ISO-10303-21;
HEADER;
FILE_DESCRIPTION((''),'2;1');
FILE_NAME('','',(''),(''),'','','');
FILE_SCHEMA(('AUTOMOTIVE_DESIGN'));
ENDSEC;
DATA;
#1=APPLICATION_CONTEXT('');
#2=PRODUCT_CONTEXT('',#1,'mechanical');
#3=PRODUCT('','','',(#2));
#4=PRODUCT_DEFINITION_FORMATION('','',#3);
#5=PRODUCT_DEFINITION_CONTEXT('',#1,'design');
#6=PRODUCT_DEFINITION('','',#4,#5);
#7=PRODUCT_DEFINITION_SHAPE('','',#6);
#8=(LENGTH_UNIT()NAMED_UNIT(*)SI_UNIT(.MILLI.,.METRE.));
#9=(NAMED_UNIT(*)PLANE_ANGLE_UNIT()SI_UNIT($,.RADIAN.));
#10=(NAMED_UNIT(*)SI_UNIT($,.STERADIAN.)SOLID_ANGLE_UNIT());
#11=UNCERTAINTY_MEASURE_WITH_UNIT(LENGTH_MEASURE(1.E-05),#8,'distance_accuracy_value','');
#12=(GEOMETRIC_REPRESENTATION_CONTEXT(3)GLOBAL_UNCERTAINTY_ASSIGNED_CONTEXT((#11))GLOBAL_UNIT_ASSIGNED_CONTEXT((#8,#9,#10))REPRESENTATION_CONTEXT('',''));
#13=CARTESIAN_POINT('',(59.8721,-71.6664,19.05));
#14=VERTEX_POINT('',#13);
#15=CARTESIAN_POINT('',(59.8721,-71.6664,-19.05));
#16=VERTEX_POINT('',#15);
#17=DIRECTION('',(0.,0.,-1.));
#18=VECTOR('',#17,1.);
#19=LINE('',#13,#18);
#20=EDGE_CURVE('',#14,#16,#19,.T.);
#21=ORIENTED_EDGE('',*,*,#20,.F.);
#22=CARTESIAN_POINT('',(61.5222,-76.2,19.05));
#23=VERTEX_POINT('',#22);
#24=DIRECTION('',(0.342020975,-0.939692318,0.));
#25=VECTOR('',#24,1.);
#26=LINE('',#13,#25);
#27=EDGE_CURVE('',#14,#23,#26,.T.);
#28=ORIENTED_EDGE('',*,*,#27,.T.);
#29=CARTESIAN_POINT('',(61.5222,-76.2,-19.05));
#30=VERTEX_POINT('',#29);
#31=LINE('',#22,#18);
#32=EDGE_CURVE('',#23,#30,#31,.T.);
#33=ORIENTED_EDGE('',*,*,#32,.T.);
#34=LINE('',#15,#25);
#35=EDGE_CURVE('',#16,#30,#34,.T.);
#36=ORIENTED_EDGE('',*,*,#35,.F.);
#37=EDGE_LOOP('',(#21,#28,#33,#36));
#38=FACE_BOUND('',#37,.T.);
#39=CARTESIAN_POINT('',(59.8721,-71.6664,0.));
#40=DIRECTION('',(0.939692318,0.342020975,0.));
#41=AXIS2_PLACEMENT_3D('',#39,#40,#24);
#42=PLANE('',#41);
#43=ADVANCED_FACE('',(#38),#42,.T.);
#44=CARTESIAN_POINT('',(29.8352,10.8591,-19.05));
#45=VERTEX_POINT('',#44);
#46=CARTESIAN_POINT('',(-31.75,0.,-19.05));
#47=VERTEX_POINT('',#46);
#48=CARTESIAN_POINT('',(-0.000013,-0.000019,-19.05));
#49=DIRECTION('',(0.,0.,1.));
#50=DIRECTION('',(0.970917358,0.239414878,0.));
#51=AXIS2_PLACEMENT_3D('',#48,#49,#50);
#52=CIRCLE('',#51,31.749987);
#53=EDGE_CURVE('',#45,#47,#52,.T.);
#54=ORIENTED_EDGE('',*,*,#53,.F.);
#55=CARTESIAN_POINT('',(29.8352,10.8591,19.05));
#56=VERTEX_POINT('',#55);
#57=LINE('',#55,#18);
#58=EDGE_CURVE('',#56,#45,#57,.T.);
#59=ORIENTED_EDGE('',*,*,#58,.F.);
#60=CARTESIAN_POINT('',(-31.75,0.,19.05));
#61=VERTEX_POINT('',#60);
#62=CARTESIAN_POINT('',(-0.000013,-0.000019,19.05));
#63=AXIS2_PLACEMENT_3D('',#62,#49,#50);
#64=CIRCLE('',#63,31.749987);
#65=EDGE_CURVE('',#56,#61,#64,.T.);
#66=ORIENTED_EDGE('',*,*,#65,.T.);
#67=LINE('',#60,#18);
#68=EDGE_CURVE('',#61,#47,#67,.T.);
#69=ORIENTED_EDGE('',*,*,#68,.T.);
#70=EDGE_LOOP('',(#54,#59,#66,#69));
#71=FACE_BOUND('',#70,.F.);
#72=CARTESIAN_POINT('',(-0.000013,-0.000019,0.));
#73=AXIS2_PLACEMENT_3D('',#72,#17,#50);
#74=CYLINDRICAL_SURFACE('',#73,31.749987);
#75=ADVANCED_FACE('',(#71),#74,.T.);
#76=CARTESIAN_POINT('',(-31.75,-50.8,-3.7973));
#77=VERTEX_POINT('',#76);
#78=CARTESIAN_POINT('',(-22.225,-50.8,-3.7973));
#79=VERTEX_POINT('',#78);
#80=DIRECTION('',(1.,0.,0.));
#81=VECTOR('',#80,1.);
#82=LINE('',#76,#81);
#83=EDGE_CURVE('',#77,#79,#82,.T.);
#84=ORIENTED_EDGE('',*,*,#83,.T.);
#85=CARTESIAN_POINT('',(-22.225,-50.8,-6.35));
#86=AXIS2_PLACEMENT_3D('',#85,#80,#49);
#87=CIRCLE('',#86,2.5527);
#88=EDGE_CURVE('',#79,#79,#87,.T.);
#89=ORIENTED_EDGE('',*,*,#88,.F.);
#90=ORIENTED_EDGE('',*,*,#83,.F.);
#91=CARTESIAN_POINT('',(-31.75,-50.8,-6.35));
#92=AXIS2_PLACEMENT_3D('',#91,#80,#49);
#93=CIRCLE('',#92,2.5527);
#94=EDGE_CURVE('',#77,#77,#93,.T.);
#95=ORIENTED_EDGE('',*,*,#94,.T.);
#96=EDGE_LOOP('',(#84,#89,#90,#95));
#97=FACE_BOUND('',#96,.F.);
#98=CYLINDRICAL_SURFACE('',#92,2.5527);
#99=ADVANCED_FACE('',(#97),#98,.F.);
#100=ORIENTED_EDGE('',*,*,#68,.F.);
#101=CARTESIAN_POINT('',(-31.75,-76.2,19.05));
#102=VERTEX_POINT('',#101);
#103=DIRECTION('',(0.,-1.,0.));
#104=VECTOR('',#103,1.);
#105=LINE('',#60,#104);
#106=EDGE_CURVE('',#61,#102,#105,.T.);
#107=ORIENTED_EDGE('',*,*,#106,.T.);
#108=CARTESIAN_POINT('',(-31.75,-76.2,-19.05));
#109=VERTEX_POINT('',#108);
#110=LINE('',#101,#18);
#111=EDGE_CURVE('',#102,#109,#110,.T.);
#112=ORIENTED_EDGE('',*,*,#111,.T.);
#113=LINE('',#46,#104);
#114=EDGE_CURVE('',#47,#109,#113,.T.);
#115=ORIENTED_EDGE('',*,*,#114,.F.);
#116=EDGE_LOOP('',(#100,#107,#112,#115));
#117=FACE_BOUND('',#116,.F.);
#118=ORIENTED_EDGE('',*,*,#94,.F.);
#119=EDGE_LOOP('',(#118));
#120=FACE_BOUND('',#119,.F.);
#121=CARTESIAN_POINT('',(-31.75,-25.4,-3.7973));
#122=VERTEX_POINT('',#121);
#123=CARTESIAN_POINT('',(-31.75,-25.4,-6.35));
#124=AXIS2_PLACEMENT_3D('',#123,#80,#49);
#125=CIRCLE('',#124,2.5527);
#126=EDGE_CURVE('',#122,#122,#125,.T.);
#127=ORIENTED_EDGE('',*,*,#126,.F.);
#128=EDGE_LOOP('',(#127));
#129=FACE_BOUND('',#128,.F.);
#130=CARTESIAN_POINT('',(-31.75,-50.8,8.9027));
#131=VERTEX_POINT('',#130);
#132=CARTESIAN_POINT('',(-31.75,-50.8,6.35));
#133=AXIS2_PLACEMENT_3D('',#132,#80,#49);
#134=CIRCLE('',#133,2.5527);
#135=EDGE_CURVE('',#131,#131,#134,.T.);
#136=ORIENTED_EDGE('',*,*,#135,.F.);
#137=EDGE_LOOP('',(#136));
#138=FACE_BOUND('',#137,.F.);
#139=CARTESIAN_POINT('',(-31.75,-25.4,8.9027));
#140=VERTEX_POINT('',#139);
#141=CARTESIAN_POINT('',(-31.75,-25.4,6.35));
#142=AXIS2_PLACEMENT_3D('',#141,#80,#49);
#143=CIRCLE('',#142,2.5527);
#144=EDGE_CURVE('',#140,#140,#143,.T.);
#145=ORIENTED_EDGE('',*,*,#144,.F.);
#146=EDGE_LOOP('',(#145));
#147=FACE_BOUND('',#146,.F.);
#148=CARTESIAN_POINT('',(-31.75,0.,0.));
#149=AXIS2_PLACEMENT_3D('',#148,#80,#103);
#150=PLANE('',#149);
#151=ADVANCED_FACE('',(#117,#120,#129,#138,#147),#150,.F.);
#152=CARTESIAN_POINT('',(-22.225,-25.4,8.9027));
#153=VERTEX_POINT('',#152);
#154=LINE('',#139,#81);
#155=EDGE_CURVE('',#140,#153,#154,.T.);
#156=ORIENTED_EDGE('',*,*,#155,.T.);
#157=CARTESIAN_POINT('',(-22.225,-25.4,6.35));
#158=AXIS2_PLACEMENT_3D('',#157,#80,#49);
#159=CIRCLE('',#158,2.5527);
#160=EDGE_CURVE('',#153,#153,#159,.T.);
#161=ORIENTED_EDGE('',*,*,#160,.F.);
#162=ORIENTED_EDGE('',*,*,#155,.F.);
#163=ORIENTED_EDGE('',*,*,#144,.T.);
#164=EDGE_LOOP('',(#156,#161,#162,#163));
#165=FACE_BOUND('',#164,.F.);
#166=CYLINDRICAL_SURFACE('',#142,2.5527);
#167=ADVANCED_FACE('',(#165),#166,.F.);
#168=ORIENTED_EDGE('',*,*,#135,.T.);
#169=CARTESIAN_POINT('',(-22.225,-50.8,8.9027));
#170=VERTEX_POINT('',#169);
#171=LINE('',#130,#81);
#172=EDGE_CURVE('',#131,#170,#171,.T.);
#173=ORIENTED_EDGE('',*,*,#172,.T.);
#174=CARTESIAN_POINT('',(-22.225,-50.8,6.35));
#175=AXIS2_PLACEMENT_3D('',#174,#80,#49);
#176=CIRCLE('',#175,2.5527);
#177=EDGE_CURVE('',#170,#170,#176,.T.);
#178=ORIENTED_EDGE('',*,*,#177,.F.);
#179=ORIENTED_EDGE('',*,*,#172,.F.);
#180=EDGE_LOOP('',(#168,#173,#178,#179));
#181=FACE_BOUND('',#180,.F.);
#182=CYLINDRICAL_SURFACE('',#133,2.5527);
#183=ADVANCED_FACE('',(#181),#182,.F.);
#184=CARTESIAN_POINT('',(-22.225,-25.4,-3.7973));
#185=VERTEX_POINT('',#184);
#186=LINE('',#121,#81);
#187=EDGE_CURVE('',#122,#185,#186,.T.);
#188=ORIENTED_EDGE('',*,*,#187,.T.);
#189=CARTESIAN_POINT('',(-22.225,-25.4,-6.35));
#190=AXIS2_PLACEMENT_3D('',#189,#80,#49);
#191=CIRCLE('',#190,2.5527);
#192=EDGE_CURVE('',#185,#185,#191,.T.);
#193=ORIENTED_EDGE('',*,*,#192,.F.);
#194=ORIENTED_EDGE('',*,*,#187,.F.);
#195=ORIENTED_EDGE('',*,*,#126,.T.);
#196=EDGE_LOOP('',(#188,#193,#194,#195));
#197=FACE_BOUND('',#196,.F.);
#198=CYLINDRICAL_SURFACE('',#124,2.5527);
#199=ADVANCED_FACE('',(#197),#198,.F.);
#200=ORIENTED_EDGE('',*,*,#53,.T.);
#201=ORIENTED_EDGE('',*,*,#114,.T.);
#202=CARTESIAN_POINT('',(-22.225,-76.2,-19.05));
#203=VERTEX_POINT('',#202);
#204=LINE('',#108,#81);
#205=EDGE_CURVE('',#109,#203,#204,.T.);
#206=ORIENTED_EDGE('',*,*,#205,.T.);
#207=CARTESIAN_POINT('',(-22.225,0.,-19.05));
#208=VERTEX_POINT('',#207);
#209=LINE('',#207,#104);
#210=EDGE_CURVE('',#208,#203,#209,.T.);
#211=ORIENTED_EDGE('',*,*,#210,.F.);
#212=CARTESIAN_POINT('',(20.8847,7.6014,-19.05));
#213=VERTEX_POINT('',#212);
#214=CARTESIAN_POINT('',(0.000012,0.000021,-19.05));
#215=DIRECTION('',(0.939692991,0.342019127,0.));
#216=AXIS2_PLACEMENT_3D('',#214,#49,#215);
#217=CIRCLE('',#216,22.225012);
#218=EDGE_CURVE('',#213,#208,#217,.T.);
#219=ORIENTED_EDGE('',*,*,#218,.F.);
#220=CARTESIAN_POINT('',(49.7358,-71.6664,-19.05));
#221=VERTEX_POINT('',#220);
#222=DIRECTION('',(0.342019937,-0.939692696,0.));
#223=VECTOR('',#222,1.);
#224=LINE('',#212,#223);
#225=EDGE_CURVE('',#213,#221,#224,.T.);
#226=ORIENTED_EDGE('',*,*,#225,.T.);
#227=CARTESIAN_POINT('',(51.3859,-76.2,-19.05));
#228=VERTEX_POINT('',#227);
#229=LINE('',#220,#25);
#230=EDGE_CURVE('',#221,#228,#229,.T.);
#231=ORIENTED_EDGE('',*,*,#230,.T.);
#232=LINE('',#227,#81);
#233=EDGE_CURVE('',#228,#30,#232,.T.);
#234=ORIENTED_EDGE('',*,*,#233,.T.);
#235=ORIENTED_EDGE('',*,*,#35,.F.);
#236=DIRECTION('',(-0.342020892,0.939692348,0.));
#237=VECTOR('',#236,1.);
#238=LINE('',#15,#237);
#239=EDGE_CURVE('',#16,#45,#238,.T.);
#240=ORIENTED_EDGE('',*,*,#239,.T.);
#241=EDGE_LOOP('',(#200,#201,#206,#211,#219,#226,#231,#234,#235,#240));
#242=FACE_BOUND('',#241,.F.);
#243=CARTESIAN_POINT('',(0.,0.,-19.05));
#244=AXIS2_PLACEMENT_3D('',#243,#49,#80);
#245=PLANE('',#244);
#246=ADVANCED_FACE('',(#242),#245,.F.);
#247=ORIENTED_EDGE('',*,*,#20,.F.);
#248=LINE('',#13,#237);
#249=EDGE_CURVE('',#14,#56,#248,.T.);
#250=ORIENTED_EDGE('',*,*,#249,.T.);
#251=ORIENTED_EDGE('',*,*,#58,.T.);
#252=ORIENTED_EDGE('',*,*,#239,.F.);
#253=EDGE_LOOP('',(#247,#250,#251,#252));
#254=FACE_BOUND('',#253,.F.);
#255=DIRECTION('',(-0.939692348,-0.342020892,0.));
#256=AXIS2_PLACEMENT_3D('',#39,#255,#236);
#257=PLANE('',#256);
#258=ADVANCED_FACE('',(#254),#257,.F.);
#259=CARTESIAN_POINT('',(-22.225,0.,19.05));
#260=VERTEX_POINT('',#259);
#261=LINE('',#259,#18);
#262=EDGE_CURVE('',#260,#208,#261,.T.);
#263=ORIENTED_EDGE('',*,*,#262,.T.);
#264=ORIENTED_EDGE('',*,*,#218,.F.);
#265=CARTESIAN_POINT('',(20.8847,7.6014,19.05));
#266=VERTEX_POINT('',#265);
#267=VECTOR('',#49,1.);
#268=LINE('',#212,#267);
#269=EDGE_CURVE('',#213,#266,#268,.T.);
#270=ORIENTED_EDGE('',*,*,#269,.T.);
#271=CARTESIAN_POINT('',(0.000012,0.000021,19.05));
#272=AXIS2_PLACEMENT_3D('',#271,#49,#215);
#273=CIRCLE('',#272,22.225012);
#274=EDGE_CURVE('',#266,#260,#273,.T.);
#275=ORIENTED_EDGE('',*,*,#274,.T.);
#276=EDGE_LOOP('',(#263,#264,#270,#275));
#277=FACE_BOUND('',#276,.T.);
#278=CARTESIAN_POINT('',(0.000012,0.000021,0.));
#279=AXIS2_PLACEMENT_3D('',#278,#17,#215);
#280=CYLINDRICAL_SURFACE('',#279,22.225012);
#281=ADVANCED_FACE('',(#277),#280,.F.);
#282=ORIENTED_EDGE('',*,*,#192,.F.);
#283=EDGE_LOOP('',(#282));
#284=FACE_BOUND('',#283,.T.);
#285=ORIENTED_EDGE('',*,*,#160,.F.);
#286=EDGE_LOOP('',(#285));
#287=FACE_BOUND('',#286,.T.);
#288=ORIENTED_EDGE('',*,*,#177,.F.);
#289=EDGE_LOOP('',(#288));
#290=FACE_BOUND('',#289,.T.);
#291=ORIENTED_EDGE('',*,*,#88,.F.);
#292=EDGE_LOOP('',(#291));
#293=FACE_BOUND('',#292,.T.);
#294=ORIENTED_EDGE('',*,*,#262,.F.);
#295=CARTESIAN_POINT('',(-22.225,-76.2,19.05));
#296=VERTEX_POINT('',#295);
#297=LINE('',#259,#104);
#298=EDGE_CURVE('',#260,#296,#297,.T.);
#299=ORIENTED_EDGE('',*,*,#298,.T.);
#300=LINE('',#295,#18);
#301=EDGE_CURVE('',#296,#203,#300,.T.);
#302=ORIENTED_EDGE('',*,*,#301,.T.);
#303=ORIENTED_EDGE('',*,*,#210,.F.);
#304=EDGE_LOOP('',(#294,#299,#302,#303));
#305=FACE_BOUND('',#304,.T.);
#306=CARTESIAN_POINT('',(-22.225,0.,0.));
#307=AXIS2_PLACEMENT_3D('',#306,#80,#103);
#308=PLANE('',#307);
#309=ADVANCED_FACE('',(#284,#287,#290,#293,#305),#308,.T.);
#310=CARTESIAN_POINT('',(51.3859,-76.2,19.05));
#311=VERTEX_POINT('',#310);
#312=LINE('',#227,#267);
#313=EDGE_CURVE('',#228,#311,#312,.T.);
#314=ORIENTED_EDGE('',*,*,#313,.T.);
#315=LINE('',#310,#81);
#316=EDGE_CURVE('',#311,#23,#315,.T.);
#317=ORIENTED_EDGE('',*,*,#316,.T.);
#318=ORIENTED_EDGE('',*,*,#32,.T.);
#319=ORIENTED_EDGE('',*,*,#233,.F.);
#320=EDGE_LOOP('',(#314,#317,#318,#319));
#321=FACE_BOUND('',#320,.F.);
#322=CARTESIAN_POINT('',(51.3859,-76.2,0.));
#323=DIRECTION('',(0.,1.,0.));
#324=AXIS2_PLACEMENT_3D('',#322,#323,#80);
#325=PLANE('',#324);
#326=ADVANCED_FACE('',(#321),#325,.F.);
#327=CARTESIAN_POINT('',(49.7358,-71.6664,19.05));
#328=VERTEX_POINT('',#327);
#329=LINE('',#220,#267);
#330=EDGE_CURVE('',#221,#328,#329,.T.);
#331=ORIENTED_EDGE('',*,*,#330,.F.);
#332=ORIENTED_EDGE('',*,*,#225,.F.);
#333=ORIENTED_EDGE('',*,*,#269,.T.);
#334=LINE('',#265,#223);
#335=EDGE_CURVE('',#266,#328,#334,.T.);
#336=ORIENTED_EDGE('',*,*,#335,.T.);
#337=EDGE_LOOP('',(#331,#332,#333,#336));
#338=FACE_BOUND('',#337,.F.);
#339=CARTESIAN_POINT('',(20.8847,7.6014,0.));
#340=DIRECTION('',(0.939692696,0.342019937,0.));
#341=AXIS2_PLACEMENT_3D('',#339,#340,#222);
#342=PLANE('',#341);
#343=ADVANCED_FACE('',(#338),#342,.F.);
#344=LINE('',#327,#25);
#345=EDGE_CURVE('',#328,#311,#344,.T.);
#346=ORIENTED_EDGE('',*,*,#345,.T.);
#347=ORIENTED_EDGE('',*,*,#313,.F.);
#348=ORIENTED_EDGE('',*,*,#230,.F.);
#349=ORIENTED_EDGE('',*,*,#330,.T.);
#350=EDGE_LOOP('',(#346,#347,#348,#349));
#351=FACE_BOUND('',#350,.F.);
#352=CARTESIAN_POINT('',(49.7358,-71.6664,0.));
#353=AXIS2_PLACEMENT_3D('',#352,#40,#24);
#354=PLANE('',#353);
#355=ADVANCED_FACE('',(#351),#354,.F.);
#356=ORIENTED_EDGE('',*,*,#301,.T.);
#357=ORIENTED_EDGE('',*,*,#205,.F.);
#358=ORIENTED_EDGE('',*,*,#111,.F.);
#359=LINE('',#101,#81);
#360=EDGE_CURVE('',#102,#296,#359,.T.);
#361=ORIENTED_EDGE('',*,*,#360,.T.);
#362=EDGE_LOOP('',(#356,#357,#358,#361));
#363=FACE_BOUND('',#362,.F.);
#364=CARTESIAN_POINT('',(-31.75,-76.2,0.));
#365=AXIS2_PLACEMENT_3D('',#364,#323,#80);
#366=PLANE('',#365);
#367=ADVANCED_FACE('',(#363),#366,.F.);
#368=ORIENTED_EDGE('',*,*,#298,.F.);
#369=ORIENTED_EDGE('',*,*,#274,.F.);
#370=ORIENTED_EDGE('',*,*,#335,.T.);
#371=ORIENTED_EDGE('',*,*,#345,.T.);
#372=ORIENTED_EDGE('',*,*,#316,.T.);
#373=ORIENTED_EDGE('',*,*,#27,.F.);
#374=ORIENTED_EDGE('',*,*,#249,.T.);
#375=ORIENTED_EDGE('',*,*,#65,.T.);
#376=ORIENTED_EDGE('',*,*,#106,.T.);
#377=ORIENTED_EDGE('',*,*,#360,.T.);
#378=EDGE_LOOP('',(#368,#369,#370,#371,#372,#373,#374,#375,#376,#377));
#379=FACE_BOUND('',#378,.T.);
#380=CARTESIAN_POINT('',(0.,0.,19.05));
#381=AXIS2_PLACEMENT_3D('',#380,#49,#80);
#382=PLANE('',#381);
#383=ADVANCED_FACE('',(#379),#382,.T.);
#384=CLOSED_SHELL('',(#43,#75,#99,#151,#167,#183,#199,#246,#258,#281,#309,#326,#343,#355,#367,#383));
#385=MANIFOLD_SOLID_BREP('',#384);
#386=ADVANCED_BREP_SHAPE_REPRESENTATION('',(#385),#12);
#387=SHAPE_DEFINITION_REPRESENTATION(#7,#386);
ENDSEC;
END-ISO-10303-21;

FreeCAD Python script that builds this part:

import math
import FreeCAD as App
import Part
import Sketcher
from FreeCAD import Vector
Q = App.Units.Quantity

doc = App.newDocument("Part")
params = doc.addObject("Spreadsheet::Sheet", "Params")
for row, (alias, value) in enumerate([
    ("sketch1_height", "3 in"),
    ("sketch1_radius", "1.25 in"),
    ("sketch1_radius2", "0.875 in"),
    ("pad1_length", "1.5 in"),
    ("sketch2_diameter", "0.201 in"),
    ("hole_diameter", "0.201 in"),
    ("hole_depth", "0.536 in"),
], start=1):
    params.set(f"A{row}", alias)
    params.set(f"B{row}", "=" + value)
    params.setAlias(f"B{row}", alias)

body = doc.addObject("PartDesign::Body", "Body")

# Sketch on XY plane
sketch1 = body.newObject("Sketcher::SketchObject", "Sketch")
sketch1.AttachmentSupport = (doc.getObject("XY_Plane"), [""])
sketch1.MapMode = "FlatFace"
sketch1.addGeometry([
    Part.ArcOfCircle(Part.Circle(Vector(0, 0, 0), Vector(0, 0, 1), 22.2), math.radians(20), math.radians(180)),  # 0
    Part.LineSegment(Vector(20.9, 7.6, 0), Vector(49.7, -71.7, 0)),  # 1
    Part.LineSegment(Vector(49.7, -71.7, 0), Vector(51.4, -76.2, 0)),  # 2
    Part.LineSegment(Vector(51.4, -76.2, 0), Vector(61.5, -76.2, 0)),  # 3
    Part.LineSegment(Vector(61.5, -76.2, 0), Vector(59.9, -71.7, 0)),  # 4
    Part.LineSegment(Vector(59.9, -71.7, 0), Vector(29.8, 10.9, 0)),  # 5
    Part.ArcOfCircle(Part.Circle(Vector(0, 0, 0), Vector(0, 0, 1), 31.7), math.radians(20), math.radians(180)),  # 6
    Part.LineSegment(Vector(-31.8, 0, 0), Vector(-31.8, -76.2, 0)),  # 7
    Part.LineSegment(Vector(-31.8, -76.2, 0), Vector(-22.2, -76.2, 0)),  # 8
    Part.LineSegment(Vector(-22.2, -76.2, 0), Vector(-22.2, 0, 0)),  # 9
], False)
sketch1.addConstraint([
    Sketcher.Constraint("Tangent", 0, 1, 1, 1),
    Sketcher.Constraint("Coincident", 1, 2, 2, 1),
    Sketcher.Constraint("Coincident", 2, 2, 3, 1),
    Sketcher.Constraint("Coincident", 3, 2, 4, 1),
    Sketcher.Constraint("Coincident", 4, 2, 5, 1),
    Sketcher.Constraint("Tangent", 5, 2, 6, 1),
    Sketcher.Constraint("Tangent", 6, 2, 7, 1),
    Sketcher.Constraint("Coincident", 7, 2, 8, 1),
    Sketcher.Constraint("Coincident", 8, 2, 9, 1),
    Sketcher.Constraint("Tangent", 9, 2, 0, 2),
    Sketcher.Constraint("Horizontal", 3),
    Sketcher.Constraint("Vertical", 7),
    Sketcher.Constraint("Horizontal", 8),
    Sketcher.Constraint("Vertical", 9),
    Sketcher.Constraint("Coincident", 0, 3, -1, 1),
    Sketcher.Constraint("Coincident", 6, 3, -1, 1),
    Sketcher.Constraint("Parallel", 1, 2),
    Sketcher.Constraint("Parallel", 2, 4),
    Sketcher.Constraint("Parallel", 4, 5),
    Sketcher.Constraint("Horizontal", 1, 2, 4, 2),
    Sketcher.Constraint("Horizontal", 3, 2, 7, 2),
    Sketcher.Constraint("DistanceY", 7, 2, 7, 1, Q("3 in")),
    Sketcher.Constraint("Radius", 6, Q("1.25 in")),
    Sketcher.Constraint("Angle", 1, Q("-70 deg")),
    Sketcher.Constraint("Radius", 0, Q("0.875 in")),
    Sketcher.Constraint("DistanceX", -1, 1, 1, 2, Q("1.9581 in")),
])
sketch1.setExpression("Constraints[21]", "Params.sketch1_height")
sketch1.setExpression("Constraints[22]", "Params.sketch1_radius")
sketch1.setExpression("Constraints[24]", "Params.sketch1_radius2")
pad1 = body.newObject("PartDesign::Pad", "Pad")
pad1.Profile = sketch1
pad1.setExpression("Length", "Params.pad1_length")
pad1.Midplane = True

# Sketch on YZ plane
sketch2 = body.newObject("Sketcher::SketchObject", "Sketch001")
sketch2.AttachmentSupport = (doc.getObject("YZ_Plane"), [""])
sketch2.MapMode = "FlatFace"
sketch2.AttachmentOffset = App.Placement(Vector(0, 0, -1.25 * 25.4), App.Rotation())
sketch2.addGeometry([
    Part.Circle(Vector(-50.8, 6.3, 0), Vector(0, 0, 1), 2.6),
    Part.Circle(Vector(-25.4, 6.3, 0), Vector(0, 0, 1), 2.6),
    Part.Circle(Vector(-50.8, -6.3, 0), Vector(0, 0, 1), 2.6),
    Part.Circle(Vector(-25.4, -6.3, 0), Vector(0, 0, 1), 2.6),
], False)
sketch2.addConstraint([
    Sketcher.Constraint("Equal", 0, 1),
    Sketcher.Constraint("Equal", 1, 2),
    Sketcher.Constraint("Equal", 2, 3),
    Sketcher.Constraint("Symmetric", 0, 3, 2, 3, -1),
    Sketcher.Constraint("Symmetric", 1, 3, 3, 3, -1),
    Sketcher.Constraint("Horizontal", 0, 3, 1, 3),
    Sketcher.Constraint("Diameter", 0, Q("0.201 in")),
    Sketcher.Constraint("DistanceX", 0, 3, -1, 1, Q("2 in")),
    Sketcher.Constraint("DistanceX", 1, 3, -1, 1, Q("1 in")),
    Sketcher.Constraint("DistanceY", 2, 3, 0, 3, Q("0.5 in")),
])
sketch2.setExpression("Constraints[6]", "Params.sketch2_diameter")
doc.recompute()
hole = body.newObject("PartDesign::Hole", "Hole")
hole.Profile = sketch2
hole.ThreadType = "None"
hole.setExpression("Diameter", "Params.hole_diameter")
hole.DepthType = "Dimension"
hole.setExpression("Depth", "Params.hole_depth")
hole.DrillPoint = "Angled"
hole.DrillPointAngle = 118
hole.Reversed = True

doc.recompute()
